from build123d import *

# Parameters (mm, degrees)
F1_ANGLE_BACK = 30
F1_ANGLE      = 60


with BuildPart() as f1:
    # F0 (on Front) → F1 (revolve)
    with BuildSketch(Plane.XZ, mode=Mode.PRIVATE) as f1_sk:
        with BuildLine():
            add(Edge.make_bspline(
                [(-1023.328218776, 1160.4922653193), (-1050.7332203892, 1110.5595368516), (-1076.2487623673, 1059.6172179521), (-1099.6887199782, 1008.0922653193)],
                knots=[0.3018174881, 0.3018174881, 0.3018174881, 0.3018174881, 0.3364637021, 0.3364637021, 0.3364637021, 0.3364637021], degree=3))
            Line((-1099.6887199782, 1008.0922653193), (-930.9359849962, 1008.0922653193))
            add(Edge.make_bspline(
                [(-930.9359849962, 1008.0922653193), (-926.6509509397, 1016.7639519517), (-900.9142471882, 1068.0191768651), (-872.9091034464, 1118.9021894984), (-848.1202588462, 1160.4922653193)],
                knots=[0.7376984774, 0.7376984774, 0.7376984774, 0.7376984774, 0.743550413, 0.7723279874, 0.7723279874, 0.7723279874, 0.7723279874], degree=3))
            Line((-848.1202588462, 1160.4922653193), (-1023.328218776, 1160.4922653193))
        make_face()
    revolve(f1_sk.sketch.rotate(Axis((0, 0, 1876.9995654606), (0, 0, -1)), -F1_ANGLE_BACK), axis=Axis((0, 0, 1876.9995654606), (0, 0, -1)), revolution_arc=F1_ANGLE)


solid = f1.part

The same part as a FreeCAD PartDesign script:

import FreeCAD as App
import Part
import Sketcher

doc = App.newDocument("Part")
body = doc.addObject("PartDesign::Body", "Body")

# Sketch on an angled plane
sketch1 = body.newObject("Sketcher::SketchObject", "Sketch")
sketch1.Placement = App.Placement(App.Vector(0, 0, 0), App.Rotation(App.Vector(0.866025404, 0.5, 0), App.Vector(0, 0, 1), App.Vector(0.5, -0.866025404, 0), "ZXY"))
sketch1.addGeometry([
    Part.BSplineCurve([App.Vector(-1023.328219, 1160.492266, 0), App.Vector(-1050.733221, 1110.559538, 0), App.Vector(-1076.248763, 1059.617219, 0), App.Vector(-1099.68872, 1008.092266, 0)], [4, 4], [0.301817488, 0.336463702], False, 3, [1, 1, 1, 1], False),
    Part.LineSegment(App.Vector(-1099.68872, 1008.092266, 0), App.Vector(-930.935985, 1008.092266, 0)),
    Part.BSplineCurve([App.Vector(-930.935985, 1008.092266, 0), App.Vector(-926.650951, 1016.763953, 0), App.Vector(-900.914248, 1068.019178, 0), App.Vector(-872.909104, 1118.90219, 0), App.Vector(-848.120259, 1160.492266, 0)], [4, 1, 4], [0.737698477, 0.743550413, 0.772327987], False, 3, [1, 1, 1, 1, 1], False),
    Part.LineSegment(App.Vector(-848.120259, 1160.492266, 0), App.Vector(-1023.328219, 1160.492266, 0)),
], False)
sketch1.addConstraint([
    Sketcher.Constraint("Block", 0),
    Sketcher.Constraint("Block", 2),
    Sketcher.Constraint("Coincident", 0, 2, 1, 1),
    Sketcher.Constraint("Coincident", 1, 2, 2, 1),
    Sketcher.Constraint("Coincident", 2, 2, 3, 1),
    Sketcher.Constraint("Coincident", 3, 2, 0, 1),
])
revolution = body.newObject("PartDesign::Revolution", "Revolution")
revolution.Profile = sketch1
revolution.ReferenceAxis = (sketch1, ["V_Axis"])
revolution.Angle = 60
revolution.Reversed = True

doc.recompute()
